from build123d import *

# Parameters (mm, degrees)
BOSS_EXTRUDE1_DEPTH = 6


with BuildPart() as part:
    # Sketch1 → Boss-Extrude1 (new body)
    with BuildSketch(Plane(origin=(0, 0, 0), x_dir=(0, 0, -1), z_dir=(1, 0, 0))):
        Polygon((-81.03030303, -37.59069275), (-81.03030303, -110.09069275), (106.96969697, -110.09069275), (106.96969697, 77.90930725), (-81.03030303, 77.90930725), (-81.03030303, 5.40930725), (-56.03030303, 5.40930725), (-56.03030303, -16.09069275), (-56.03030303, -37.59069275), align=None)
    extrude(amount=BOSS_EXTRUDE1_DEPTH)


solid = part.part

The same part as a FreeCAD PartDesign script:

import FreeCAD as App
import Part
import Sketcher

V = App.Vector
Q = App.Units.Quantity

doc = App.newDocument("Part")
body = doc.addObject("PartDesign::Body", "Body")

sketch1 = body.newObject("Sketcher::SketchObject", "Sketch")
sketch1.AttachmentSupport = (doc.getObject("YZ_Plane"), [""])
sketch1.MapMode = "FlatFace"
sketch1.addGeometry([
    Part.LineSegment(V(-38, 81, 0), V(-110, 81, 0)),
    Part.LineSegment(V(-110, 81, 0), V(-110, -107, 0)),
    Part.LineSegment(V(-110, -107, 0), V(78, -107, 0)),
    Part.LineSegment(V(78, -107, 0), V(78, 81, 0)),
    Part.LineSegment(V(78, 81, 0), V(5, 81, 0)),
    Part.LineSegment(V(5, 81, 0), V(5, 56, 0)),
    Part.LineSegment(V(5, 56, 0), V(-38, 56, 0)),
    Part.LineSegment(V(-38, 56, 0), V(-38, 81, 0)),
], False)
sketch1.addConstraint([
    Sketcher.Constraint("Coincident", 0, 2, 1, 1),
    Sketcher.Constraint("Coincident", 1, 2, 2, 1),
    Sketcher.Constraint("Coincident", 2, 2, 3, 1),
    Sketcher.Constraint("Coincident", 3, 2, 4, 1),
    Sketcher.Constraint("Coincident", 4, 2, 5, 1),
    Sketcher.Constraint("Coincident", 5, 2, 6, 1),
    Sketcher.Constraint("Coincident", 6, 2, 7, 1),
    Sketcher.Constraint("Coincident", 7, 2, 0, 1),
    Sketcher.Constraint("Horizontal", 0),
    Sketcher.Constraint("Vertical", 1),
    Sketcher.Constraint("Horizontal", 2),
    Sketcher.Constraint("Vertical", 3),
    Sketcher.Constraint("Horizontal", 4),
    Sketcher.Constraint("Vertical", 5),
    Sketcher.Constraint("Horizontal", 6),
    Sketcher.Constraint("Vertical", 7),
    Sketcher.Constraint("Horizontal", 0, 2, 3, 2),
    Sketcher.Constraint("Equal", 0, 4),
    Sketcher.Constraint("Equal", 2, 1),
    Sketcher.Constraint("DistanceX", 2, 1, 2, 2, Q("188 mm")),
    Sketcher.Constraint("DistanceX", 6, 2, 6, 1, Q("43 mm")),
    Sketcher.Constraint("DistanceY", 5, 2, 5, 1, Q("25 mm")),
    Sketcher.Constraint("DistanceX", 0, 2, -1, 1, Q("110.090693 mm")),
    Sketcher.Constraint("DistanceY", -1, 1, 0, 2, Q("81.030303 mm")),
])
pad1 = body.newObject("PartDesign::Pad", "Pad")
pad1.Profile = sketch1
pad1.Length = 6

doc.recompute()
